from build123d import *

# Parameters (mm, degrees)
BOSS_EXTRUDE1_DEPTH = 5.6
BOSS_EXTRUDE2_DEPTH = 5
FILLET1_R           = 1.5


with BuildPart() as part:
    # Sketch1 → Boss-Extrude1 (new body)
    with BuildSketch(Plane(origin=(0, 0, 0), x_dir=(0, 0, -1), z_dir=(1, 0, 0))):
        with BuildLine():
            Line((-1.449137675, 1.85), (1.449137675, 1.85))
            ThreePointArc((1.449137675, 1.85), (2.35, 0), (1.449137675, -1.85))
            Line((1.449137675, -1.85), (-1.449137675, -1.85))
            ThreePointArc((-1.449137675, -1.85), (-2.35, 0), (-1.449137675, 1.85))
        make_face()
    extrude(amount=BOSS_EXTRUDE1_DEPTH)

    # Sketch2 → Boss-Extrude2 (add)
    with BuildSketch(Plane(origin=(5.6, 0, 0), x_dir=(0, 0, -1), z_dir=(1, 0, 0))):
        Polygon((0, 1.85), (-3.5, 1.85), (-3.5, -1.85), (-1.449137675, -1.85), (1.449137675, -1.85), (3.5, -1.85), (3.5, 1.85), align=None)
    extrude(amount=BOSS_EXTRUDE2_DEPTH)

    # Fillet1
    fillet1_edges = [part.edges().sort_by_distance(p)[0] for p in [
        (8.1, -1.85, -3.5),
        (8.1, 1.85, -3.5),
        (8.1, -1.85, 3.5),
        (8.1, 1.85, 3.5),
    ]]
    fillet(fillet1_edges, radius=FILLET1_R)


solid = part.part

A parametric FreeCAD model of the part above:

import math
import FreeCAD as App
import Part
import Sketcher
Q = App.Units.Quantity


def edges_at(feature, points):
    """Names of the edges that pass closest to the given points."""
    edges = feature.Shape.Edges
    near = lambda p: min(range(len(edges)), key=lambda i: edges[i].distToShape(Part.Vertex(*p))[0])
    return sorted({f"Edge{near(p) + 1}" for p in points})


def add_polygon(sketch, points):
    """Adds a closed chain of lines whose ends are joined by coincident constraints."""
    first, n = sketch.GeometryCount, len(points)
    for a, b in zip(points, points[1:] + points[:1]):
        sketch.addGeometry(Part.LineSegment(App.Vector(*a, 0), App.Vector(*b, 0)), False)
    for i in range(n):
        sketch.addConstraint(Sketcher.Constraint("Coincident", first + i, 2, first + (i + 1) % n, 1))

doc = App.newDocument("Part")
body = doc.addObject("PartDesign::Body", "Body")

sketch1 = body.newObject("Sketcher::SketchObject", "Sketch")
sketch1.AttachmentSupport = (doc.getObject("YZ_Plane"), [""])
sketch1.MapMode = "FlatFace"
sketch1.addGeometry(Part.LineSegment(App.Vector(1.9, -1.4, 0), App.Vector(1.9, 1.4, 0)), False)
sketch1.addGeometry(Part.ArcOfCircle(Part.Circle(App.Vector(0, 0, 0), App.Vector(0, 0, 1), 2.4), math.radians(38), math.radians(142)), False)
sketch1.addGeometry(Part.LineSegment(App.Vector(-1.9, 1.4, 0), App.Vector(-1.9, -1.4, 0)), False)
sketch1.addGeometry(Part.ArcOfCircle(Part.Circle(App.Vector(0, 0, 0), App.Vector(0, 0, 1), 2.4), math.radians(-142), math.radians(-38)), False)
sketch1.addConstraint(Sketcher.Constraint("Coincident", 0, 2, 1, 1))
sketch1.addConstraint(Sketcher.Constraint("Coincident", 1, 2, 2, 1))
sketch1.addConstraint(Sketcher.Constraint("Coincident", 2, 2, 3, 1))
sketch1.addConstraint(Sketcher.Constraint("Coincident", 3, 2, 0, 1))
sketch1.addConstraint(Sketcher.Constraint("Vertical", 0))
sketch1.addConstraint(Sketcher.Constraint("Vertical", 2))
sketch1.addConstraint(Sketcher.Constraint("Coincident", 1, 3, -1, 1))
sketch1.addConstraint(Sketcher.Constraint("Coincident", 3, 3, -1, 1))
sketch1.addConstraint(Sketcher.Constraint("Equal", 1, 3))
sketch1.addConstraint(Sketcher.Constraint("Horizontal", 0, 2, 1, 2))
sketch1.addConstraint(Sketcher.Constraint("Radius", 1, Q("2.35 mm")))
sketch1.addConstraint(Sketcher.Constraint("DistanceX", 1, 2, 0, 2, Q("3.7 mm")))
pad1 = body.newObject("PartDesign::Pad", "Pad")
pad1.Profile = sketch1
pad1.Length = 5.6

sketch2 = body.newObject("Sketcher::SketchObject", "Sketch001")
sketch2.AttachmentSupport = (doc.getObject("YZ_Plane"), [""])
sketch2.MapMode = "FlatFace"
sketch2.AttachmentOffset = App.Placement(App.Vector(0, 0, 5.6), App.Rotation())
add_polygon(sketch2, [(1.9, 3.5), (-1.9, 3.5), (-1.9, -3.5), (1.9, -3.5)])
sketch2.addConstraint(Sketcher.Constraint("Horizontal", 0))
sketch2.addConstraint(Sketcher.Constraint("Vertical", 1))
sketch2.addConstraint(Sketcher.Constraint("Horizontal", 2))
sketch2.addConstraint(Sketcher.Constraint("Vertical", 3))
sketch2.addConstraint(Sketcher.Constraint("Symmetric", 0, 2, 2, 2, -1, 1))
sketch2.addConstraint(Sketcher.Constraint("DistanceY", 1, 2, 1, 1, Q("7 mm")))
sketch2.addConstraint(Sketcher.Constraint("DistanceX", 0, 2, 0, 1, Q("3.7 mm")))
pad2 = body.newObject("PartDesign::Pad", "Pad001")
pad2.Profile = sketch2
pad2.Length = 5
doc.recompute()

fillet = body.newObject("PartDesign::Fillet", "Fillet")
fillet.Base = (pad2, edges_at(pad2, [
    (8.1, -1.85, -3.5),
    (8.1, 1.85, -3.5),
    (8.1, -1.85, 3.5),
    (8.1, 1.85, 3.5),
]))
fillet.Radius = 1.5

doc.recompute()
